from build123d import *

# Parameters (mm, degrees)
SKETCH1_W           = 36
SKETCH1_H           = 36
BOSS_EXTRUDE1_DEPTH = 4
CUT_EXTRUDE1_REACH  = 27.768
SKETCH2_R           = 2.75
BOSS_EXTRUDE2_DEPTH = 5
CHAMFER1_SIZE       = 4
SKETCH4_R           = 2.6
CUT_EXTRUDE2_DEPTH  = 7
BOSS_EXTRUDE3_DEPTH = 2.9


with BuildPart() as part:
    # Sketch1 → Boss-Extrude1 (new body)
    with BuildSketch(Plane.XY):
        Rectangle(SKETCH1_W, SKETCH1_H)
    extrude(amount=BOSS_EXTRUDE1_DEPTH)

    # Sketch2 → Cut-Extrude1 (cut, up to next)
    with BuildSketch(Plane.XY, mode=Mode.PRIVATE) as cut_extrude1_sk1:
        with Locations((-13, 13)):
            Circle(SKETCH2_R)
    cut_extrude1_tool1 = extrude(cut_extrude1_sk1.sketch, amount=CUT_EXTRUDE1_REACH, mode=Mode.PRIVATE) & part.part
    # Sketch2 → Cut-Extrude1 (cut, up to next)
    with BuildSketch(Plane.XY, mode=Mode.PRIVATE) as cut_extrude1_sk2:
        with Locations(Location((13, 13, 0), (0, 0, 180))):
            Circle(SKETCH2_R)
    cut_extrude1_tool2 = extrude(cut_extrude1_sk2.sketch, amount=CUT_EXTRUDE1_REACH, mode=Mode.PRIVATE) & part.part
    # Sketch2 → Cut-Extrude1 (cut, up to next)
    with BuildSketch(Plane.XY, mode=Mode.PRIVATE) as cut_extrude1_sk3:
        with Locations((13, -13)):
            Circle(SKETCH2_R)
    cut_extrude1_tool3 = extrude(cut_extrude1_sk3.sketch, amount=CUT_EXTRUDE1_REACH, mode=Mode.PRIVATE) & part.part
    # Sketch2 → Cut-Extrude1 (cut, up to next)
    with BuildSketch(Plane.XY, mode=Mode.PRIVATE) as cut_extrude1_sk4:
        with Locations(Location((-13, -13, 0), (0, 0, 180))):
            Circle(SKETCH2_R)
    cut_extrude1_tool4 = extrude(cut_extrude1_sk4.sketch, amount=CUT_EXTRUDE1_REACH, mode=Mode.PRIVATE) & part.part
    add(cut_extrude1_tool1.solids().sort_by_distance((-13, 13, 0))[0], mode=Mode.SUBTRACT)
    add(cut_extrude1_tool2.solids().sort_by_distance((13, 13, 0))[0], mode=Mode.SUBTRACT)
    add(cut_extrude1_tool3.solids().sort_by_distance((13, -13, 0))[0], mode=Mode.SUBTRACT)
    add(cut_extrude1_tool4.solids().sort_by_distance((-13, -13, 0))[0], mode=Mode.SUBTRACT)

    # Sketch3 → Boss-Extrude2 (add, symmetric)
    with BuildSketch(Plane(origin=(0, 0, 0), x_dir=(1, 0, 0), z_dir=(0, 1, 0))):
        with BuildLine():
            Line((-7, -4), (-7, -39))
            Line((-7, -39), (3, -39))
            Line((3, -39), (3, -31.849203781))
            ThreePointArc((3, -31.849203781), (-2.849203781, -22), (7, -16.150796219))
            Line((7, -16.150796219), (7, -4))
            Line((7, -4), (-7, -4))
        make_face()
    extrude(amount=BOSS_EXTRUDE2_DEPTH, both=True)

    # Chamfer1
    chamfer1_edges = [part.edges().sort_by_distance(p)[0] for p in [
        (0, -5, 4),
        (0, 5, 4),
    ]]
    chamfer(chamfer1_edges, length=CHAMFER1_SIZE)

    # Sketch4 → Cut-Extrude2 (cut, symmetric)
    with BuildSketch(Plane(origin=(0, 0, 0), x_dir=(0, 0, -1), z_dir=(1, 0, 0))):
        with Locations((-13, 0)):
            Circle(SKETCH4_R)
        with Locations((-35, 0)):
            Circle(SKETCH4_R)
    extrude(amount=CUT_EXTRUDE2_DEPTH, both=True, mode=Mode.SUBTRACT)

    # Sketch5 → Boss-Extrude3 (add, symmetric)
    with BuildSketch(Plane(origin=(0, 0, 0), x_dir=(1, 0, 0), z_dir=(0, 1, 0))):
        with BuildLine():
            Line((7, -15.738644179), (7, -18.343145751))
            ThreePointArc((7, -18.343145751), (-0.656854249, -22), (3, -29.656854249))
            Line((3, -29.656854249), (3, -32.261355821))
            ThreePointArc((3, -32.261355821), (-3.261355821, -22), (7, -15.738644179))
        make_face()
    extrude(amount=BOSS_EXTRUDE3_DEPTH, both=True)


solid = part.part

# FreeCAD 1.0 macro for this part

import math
import FreeCAD as App
import Part
import Sketcher
from FreeCAD import Vector
Q = App.Units.Quantity


def edges_at(feature, points):
    """Names of the edges that pass closest to the given points."""
    edges = feature.Shape.Edges
    near = lambda p: min(range(len(edges)), key=lambda i: edges[i].distToShape(Part.Vertex(*p))[0])
    return sorted({f"Edge{near(p) + 1}" for p in points})

doc = App.newDocument("Part")
body = doc.addObject("PartDesign::Body", "Body")

sketch1 = doc.addObject("Sketcher::SketchObject", "Sketch")
body.addObject(sketch1)
sketch1.AttachmentSupport = (doc.XY_Plane, [""])
sketch1.MapMode = "FlatFace"
sketch1.addGeometry([
    Part.LineSegment(Vector(-18, 18, 0), Vector(-18, -18, 0)),
    Part.LineSegment(Vector(-18, -18, 0), Vector(18, -18, 0)),
    Part.LineSegment(Vector(18, -18, 0), Vector(18, 18, 0)),
    Part.LineSegment(Vector(18, 18, 0), Vector(-18, 18, 0)),
], False)
sketch1.addConstraint([
    Sketcher.Constraint("Coincident", 0, 2, 1, 1),
    Sketcher.Constraint("Coincident", 1, 2, 2, 1),
    Sketcher.Constraint("Coincident", 2, 2, 3, 1),
    Sketcher.Constraint("Coincident", 3, 2, 0, 1),
    Sketcher.Constraint("Vertical", 0),
    Sketcher.Constraint("Horizontal", 1),
    Sketcher.Constraint("Vertical", 2),
    Sketcher.Constraint("Horizontal", 3),
    Sketcher.Constraint("Symmetric", 0, 2, 2, 2, -1, 1),
    Sketcher.Constraint("Equal", 3, 0),
    Sketcher.Constraint("DistanceX", 1, 1, 1, 2, Q("36 mm")),
])
pad1 = doc.addObject("PartDesign::Pad", "Pad")
body.addObject(pad1)
pad1.Profile = sketch1
pad1.Length = 4

sketch2 = doc.addObject("Sketcher::SketchObject", "Sketch001")
body.addObject(sketch2)
sketch2.AttachmentSupport = (doc.XY_Plane, [""])
sketch2.MapMode = "FlatFace"
sketch2.addGeometry(Part.Circle(Vector(-13, 13, 0), Vector(0, 0, 1), 2.8), False)
sketch2.addConstraint([
    Sketcher.Constraint("Diameter", 0, Q("5.5 mm")),
    Sketcher.Constraint("DistanceX", 0, 3, -1, 1, Q("13 mm")),
    Sketcher.Constraint("DistanceY", -1, 1, 0, 3, Q("13 mm")),
])
pocket1 = doc.addObject("PartDesign::Pocket", "Pocket")
body.addObject(pocket1)
pocket1.Profile = sketch2
pocket1.Type = "UpToFirst"
pocket1.Reversed = True

sketch3 = doc.addObject("Sketcher::SketchObject", "Sketch002")
body.addObject(sketch3)
sketch3.AttachmentSupport = (doc.XY_Plane, [""])
sketch3.MapMode = "FlatFace"
sketch3.addGeometry(Part.Circle(Vector(13, 13, 0), Vector(0, 0, 1), 2.8), False)
sketch3.addConstraint([
    Sketcher.Constraint("Diameter", 0, Q("5.5 mm")),
    Sketcher.Constraint("DistanceX", -1, 1, 0, 3, Q("13 mm")),
    Sketcher.Constraint("DistanceY", -1, 1, 0, 3, Q("13 mm")),
])
pocket2 = doc.addObject("PartDesign::Pocket", "Pocket001")
body.addObject(pocket2)
pocket2.Profile = sketch3
pocket2.Type = "UpToFirst"
pocket2.Reversed = True

sketch4 = doc.addObject("Sketcher::SketchObject", "Sketch003")
body.addObject(sketch4)
sketch4.AttachmentSupport = (doc.XY_Plane, [""])
sketch4.MapMode = "FlatFace"
sketch4.addGeometry(Part.Circle(Vector(13, -13, 0), Vector(0, 0, 1), 2.8), False)
sketch4.addConstraint([
    Sketcher.Constraint("Diameter", 0, Q("5.5 mm")),
    Sketcher.Constraint("DistanceX", -1, 1, 0, 3, Q("13 mm")),
    Sketcher.Constraint("DistanceY", 0, 3, -1, 1, Q("13 mm")),
])
pocket3 = doc.addObject("PartDesign::Pocket", "Pocket002")
body.addObject(pocket3)
pocket3.Profile = sketch4
pocket3.Type = "UpToFirst"
pocket3.Reversed = True

sketch5 = doc.addObject("Sketcher::SketchObject", "Sketch004")
body.addObject(sketch5)
sketch5.AttachmentSupport = (doc.XY_Plane, [""])
sketch5.MapMode = "FlatFace"
sketch5.addGeometry(Part.Circle(Vector(-13, -13, 0), Vector(0, 0, 1), 2.8), False)
sketch5.addConstraint([
    Sketcher.Constraint("Diameter", 0, Q("5.5 mm")),
    Sketcher.Constraint("DistanceX", 0, 3, -1, 1, Q("13 mm")),
    Sketcher.Constraint("DistanceY", 0, 3, -1, 1, Q("13 mm")),
])
pocket4 = doc.addObject("PartDesign::Pocket", "Pocket003")
body.addObject(pocket4)
pocket4.Profile = sketch5
pocket4.Type = "UpToFirst"
pocket4.Reversed = True

sketch6 = doc.addObject("Sketcher::SketchObject", "Sketch005")
body.addObject(sketch6)
sketch6.AttachmentSupport = (doc.XZ_Plane, [""])
sketch6.MapMode = "FlatFace"
sketch6.addGeometry([
    Part.LineSegment(Vector(-7, 4, 0), Vector(-7, 39, 0)),
    Part.LineSegment(Vector(-7, 39, 0), Vector(3, 39, 0)),
    Part.LineSegment(Vector(3, 39, 0), Vector(3, 32, 0)),
    Part.ArcOfCircle(Part.Circle(Vector(5, 24, 0), Vector(0, 0, 1), 8), math.radians(104), math.radians(284)),
    Part.LineSegment(Vector(7, 16, 0), Vector(7, 4, 0)),
    Part.LineSegment(Vector(7, 4, 0), Vector(-7, 4, 0)),
], False)
sketch6.addConstraint([
    Sketcher.Constraint("Coincident", 0, 2, 1, 1),
    Sketcher.Constraint("Coincident", 1, 2, 2, 1),
    Sketcher.Constraint("Coincident", 2, 2, 3, 1),
    Sketcher.Constraint("Coincident", 3, 2, 4, 1),
    Sketcher.Constraint("Coincident", 4, 2, 5, 1),
    Sketcher.Constraint("Coincident", 5, 2, 0, 1),
    Sketcher.Constraint("Vertical", 0),
    Sketcher.Constraint("Horizontal", 1),
    Sketcher.Constraint("Vertical", 2),
    Sketcher.Constraint("Vertical", 4),
    Sketcher.Constraint("Horizontal", 5),
    Sketcher.Constraint("Radius", 3, Q("8.1 mm")),
    Sketcher.Constraint("DistanceX", 1, 1, 1, 2, Q("10 mm")),
    Sketcher.Constraint("DistanceX", 5, 2, 5, 1, Q("14 mm")),
    Sketcher.Constraint("DistanceY", 0, 1, 0, 2, Q("35 mm")),
    Sketcher.Constraint("DistanceX", -1, 1, 3, 3, Q("5 mm")),
    Sketcher.Constraint("DistanceY", -1, 1, 3, 3, Q("24 mm")),
    Sketcher.Constraint("DistanceX", 0, 2, -1, 1, Q("7 mm")),
    Sketcher.Constraint("DistanceY", -1, 1, 0, 2, Q("39 mm")),
])
pad2 = doc.addObject("PartDesign::Pad", "Pad001")
body.addObject(pad2)
pad2.Profile = sketch6
pad2.Length = 10
pad2.Midplane = True
doc.recompute()

chamfer = doc.addObject("PartDesign::Chamfer", "Chamfer")
body.addObject(chamfer)
chamfer.Base = (pad2, edges_at(pad2, [(0, -5, 4), (0, 5, 4)]))
chamfer.Size = 4

sketch7 = doc.addObject("Sketcher::SketchObject", "Sketch006")
body.addObject(sketch7)
sketch7.AttachmentSupport = (doc.YZ_Plane, [""])
sketch7.MapMode = "FlatFace"
sketch7.addGeometry([
    Part.Circle(Vector(0, 13, 0), Vector(0, 0, 1), 2.6),
    Part.Circle(Vector(0, 35, 0), Vector(0, 0, 1), 2.6),
], False)
sketch7.addConstraint([
    Sketcher.Constraint("Equal", 0, 1),
    Sketcher.Constraint("PointOnObject", 0, 3, -2),
    Sketcher.Constraint("PointOnObject", 1, 3, -2),
    Sketcher.Constraint("Diameter", 0, Q("5.2 mm")),
    Sketcher.Constraint("DistanceY", -1, 1, 0, 3, Q("13 mm")),
    Sketcher.Constraint("DistanceY", -1, 1, 1, 3, Q("35 mm")),
])
pocket5 = doc.addObject("PartDesign::Pocket", "Pocket004")
body.addObject(pocket5)
pocket5.Profile = sketch7
pocket5.Length = 14
pocket5.Midplane = True

sketch8 = doc.addObject("Sketcher::SketchObject", "Sketch007")
body.addObject(sketch8)
sketch8.AttachmentSupport = (doc.XZ_Plane, [""])
sketch8.MapMode = "FlatFace"
sketch8.addGeometry([
    Part.LineSegment(Vector(7, 18.3, 0), Vector(7, 15.7, 0)),
    Part.ArcOfCircle(Part.Circle(Vector(5, 24, 0), Vector(0, 0, 1), 8.5), math.radians(104), math.radians(284)),
    Part.LineSegment(Vector(3, 32.3, 0), Vector(3, 29.7, 0)),
    Part.ArcOfCircle(Part.Circle(Vector(5, 24, 0), Vector(0, 0, 1), 6), math.radians(109), math.radians(289)),
], False)
sketch8.addConstraint([
    Sketcher.Constraint("Coincident", 0, 2, 1, 2),
    Sketcher.Constraint("Coincident", 1, 1, 2, 1),
    Sketcher.Constraint("Coincident", 2, 2, 3, 1),
    Sketcher.Constraint("Coincident", 3, 2, 0, 1),
    Sketcher.Constraint("Vertical", 0),
    Sketcher.Constraint("Vertical", 2),
    Sketcher.Constraint("Coincident", 3, 3, 1, 3),
    Sketcher.Constraint("Equal", 0, 2),
    Sketcher.Constraint("Radius", 3, Q("6 mm")),
    Sketcher.Constraint("Radius", 1, Q("8.5 mm")),
    Sketcher.Constraint("DistanceX", -1, 1, 1, 3, Q("5 mm")),
    Sketcher.Constraint("DistanceY", -1, 1, 1, 3, Q("24 mm")),
    Sketcher.Constraint("DistanceX", -1, 1, 0, 2, Q("7 mm")),
])
pad3 = doc.addObject("PartDesign::Pad", "Pad002")
body.addObject(pad3)
pad3.Profile = sketch8
pad3.Length = 5.8
pad3.Midplane = True

doc.recompute()
